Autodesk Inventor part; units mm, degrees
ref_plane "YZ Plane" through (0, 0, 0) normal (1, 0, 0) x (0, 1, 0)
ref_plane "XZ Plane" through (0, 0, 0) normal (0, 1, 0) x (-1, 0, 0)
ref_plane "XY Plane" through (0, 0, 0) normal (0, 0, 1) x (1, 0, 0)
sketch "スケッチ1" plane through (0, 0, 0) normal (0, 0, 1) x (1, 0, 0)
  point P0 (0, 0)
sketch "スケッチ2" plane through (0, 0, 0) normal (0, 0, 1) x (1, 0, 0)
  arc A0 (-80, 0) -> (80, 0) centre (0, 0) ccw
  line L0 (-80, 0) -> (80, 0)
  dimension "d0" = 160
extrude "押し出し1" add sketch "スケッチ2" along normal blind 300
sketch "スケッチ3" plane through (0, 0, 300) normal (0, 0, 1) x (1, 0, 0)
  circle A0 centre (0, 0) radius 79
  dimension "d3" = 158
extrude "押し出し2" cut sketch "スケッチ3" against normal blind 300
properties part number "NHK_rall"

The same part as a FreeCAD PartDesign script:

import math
import FreeCAD as App
import Part
import Sketcher

V = App.Vector
Q = App.Units.Quantity

doc = App.newDocument("Part")
params = doc.addObject("Spreadsheet::Sheet", "Params")
for row, (alias, value) in enumerate([
    ("sketch1_radius", "80 mm"),
    ("pad1_length", "300 mm"),
    ("sketch2_diameter", "158 mm"),
    ("pocket1_length", "300 mm"),
], start=1):
    params.set(f"A{row}", alias)
    params.set(f"B{row}", "=" + value)
    params.setAlias(f"B{row}", alias)

body = doc.addObject("PartDesign::Body", "Body")

sketch1 = body.newObject("Sketcher::SketchObject", "Sketch")
sketch1.AttachmentSupport = (doc.getObject("XY_Plane"), [""])
sketch1.MapMode = "FlatFace"
sketch1.addGeometry([
    Part.LineSegment(V(80, 0, 0), V(-80, 0, 0)),
    Part.ArcOfCircle(Part.Circle(V(0, 0, 0), V(0, 0, 1), 80), math.radians(180), math.radians(360)),
], False)
sketch1.addConstraint([
    Sketcher.Constraint("Coincident", 0, 1, 1, 2),
    Sketcher.Constraint("Coincident", 1, 1, 0, 2),
    Sketcher.Constraint("Horizontal", 0),
    Sketcher.Constraint("Coincident", 1, 3, -1, 1),
    Sketcher.Constraint("PointOnObject", 0, 1, -1),
    Sketcher.Constraint("Radius", 1, Q("80 mm")),
])
sketch1.setExpression("Constraints[5]", "Params.sketch1_radius")
pad1 = body.newObject("PartDesign::Pad", "Pad")
pad1.Profile = sketch1
pad1.setExpression("Length", "Params.pad1_length")

sketch2 = body.newObject("Sketcher::SketchObject", "Sketch001")
sketch2.AttachmentSupport = (doc.getObject("XY_Plane"), [""])
sketch2.MapMode = "FlatFace"
sketch2.AttachmentOffset = App.Placement(V(0, 0, 300), App.Rotation())
sketch2.addGeometry(Part.Circle(V(0, 0, 0), V(0, 0, 1), 79), False)
sketch2.addConstraint([
    Sketcher.Constraint("Coincident", 0, 3, -1, 1),
    Sketcher.Constraint("Diameter", 0, Q("158 mm")),
])
sketch2.setExpression("Constraints[1]", "Params.sketch2_diameter")
pocket1 = body.newObject("PartDesign::Pocket", "Pocket")
pocket1.Profile = sketch2
pocket1.setExpression("Length", "Params.pocket1_length")

doc.recompute()
